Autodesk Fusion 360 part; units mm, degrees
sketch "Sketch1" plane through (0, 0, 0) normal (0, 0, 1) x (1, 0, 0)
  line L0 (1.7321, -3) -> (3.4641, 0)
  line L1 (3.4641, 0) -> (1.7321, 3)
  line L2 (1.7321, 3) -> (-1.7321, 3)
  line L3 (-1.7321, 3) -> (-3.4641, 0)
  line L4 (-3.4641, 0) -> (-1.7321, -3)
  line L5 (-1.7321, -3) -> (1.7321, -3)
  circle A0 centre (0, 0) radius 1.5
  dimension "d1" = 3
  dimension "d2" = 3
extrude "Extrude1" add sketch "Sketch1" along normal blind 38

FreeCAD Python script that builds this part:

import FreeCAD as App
import Part
import Sketcher
Q = App.Units.Quantity

doc = App.newDocument("Part")
body = doc.addObject("PartDesign::Body", "Body")

# Sketch on XY plane
sketch1 = body.newObject("Sketcher::SketchObject", "Sketch")
sketch1.AttachmentSupport = (doc.getObject("XY_Plane"), [""])
sketch1.MapMode = "FlatFace"
sketch1.addGeometry([
    Part.LineSegment(App.Vector(-1.7, -3, 0), App.Vector(1.7, -3, 0)),  # 0
    Part.LineSegment(App.Vector(1.7, -3, 0), App.Vector(3.5, 0, 0)),  # 1
    Part.LineSegment(App.Vector(3.5, 0, 0), App.Vector(1.7, 3, 0)),  # 2
    Part.LineSegment(App.Vector(1.7, 3, 0), App.Vector(-1.7, 3, 0)),  # 3
    Part.LineSegment(App.Vector(-1.7, 3, 0), App.Vector(-3.5, 0, 0)),  # 4
    Part.LineSegment(App.Vector(-3.5, 0, 0), App.Vector(-1.7, -3, 0)),  # 5
    Part.Circle(App.Vector(0, 0, 0), App.Vector(0, 0, 1), 1.5),  # 6
], False)
sketch1.addConstraint([
    Sketcher.Constraint("Coincident", 0, 2, 1, 1),
    Sketcher.Constraint("Coincident", 1, 2, 2, 1),
    Sketcher.Constraint("Coincident", 2, 2, 3, 1),
    Sketcher.Constraint("Coincident", 3, 2, 4, 1),
    Sketcher.Constraint("Coincident", 4, 2, 5, 1),
    Sketcher.Constraint("Coincident", 5, 2, 0, 1),
    Sketcher.Constraint("Horizontal", 0),
    Sketcher.Constraint("Horizontal", 3),
    Sketcher.Constraint("Coincident", 6, 3, -1, 1),
    Sketcher.Constraint("Symmetric", 0, 2, 3, 2, -1, 1),
    Sketcher.Constraint("Symmetric", 1, 2, 4, 2, -1, 1),
    Sketcher.Constraint("PointOnObject", 1, 2, -1),
    Sketcher.Constraint("Parallel", 2, 5),
    Sketcher.Constraint("Vertical", 0, 2, 2, 2),
    Sketcher.Constraint("Diameter", 6, 3.0),
    Sketcher.Constraint("DistanceY", 0, 2, -1, 1, 3.0),
    Sketcher.Constraint("Angle", 1, Q("60.0007 deg")),
    Sketcher.Constraint("DistanceX", 0, 1, 0, 2, 3.4642),
])
pad1 = body.newObject("PartDesign::Pad", "Pad")
pad1.Profile = sketch1
pad1.Length = 38

doc.recompute()
